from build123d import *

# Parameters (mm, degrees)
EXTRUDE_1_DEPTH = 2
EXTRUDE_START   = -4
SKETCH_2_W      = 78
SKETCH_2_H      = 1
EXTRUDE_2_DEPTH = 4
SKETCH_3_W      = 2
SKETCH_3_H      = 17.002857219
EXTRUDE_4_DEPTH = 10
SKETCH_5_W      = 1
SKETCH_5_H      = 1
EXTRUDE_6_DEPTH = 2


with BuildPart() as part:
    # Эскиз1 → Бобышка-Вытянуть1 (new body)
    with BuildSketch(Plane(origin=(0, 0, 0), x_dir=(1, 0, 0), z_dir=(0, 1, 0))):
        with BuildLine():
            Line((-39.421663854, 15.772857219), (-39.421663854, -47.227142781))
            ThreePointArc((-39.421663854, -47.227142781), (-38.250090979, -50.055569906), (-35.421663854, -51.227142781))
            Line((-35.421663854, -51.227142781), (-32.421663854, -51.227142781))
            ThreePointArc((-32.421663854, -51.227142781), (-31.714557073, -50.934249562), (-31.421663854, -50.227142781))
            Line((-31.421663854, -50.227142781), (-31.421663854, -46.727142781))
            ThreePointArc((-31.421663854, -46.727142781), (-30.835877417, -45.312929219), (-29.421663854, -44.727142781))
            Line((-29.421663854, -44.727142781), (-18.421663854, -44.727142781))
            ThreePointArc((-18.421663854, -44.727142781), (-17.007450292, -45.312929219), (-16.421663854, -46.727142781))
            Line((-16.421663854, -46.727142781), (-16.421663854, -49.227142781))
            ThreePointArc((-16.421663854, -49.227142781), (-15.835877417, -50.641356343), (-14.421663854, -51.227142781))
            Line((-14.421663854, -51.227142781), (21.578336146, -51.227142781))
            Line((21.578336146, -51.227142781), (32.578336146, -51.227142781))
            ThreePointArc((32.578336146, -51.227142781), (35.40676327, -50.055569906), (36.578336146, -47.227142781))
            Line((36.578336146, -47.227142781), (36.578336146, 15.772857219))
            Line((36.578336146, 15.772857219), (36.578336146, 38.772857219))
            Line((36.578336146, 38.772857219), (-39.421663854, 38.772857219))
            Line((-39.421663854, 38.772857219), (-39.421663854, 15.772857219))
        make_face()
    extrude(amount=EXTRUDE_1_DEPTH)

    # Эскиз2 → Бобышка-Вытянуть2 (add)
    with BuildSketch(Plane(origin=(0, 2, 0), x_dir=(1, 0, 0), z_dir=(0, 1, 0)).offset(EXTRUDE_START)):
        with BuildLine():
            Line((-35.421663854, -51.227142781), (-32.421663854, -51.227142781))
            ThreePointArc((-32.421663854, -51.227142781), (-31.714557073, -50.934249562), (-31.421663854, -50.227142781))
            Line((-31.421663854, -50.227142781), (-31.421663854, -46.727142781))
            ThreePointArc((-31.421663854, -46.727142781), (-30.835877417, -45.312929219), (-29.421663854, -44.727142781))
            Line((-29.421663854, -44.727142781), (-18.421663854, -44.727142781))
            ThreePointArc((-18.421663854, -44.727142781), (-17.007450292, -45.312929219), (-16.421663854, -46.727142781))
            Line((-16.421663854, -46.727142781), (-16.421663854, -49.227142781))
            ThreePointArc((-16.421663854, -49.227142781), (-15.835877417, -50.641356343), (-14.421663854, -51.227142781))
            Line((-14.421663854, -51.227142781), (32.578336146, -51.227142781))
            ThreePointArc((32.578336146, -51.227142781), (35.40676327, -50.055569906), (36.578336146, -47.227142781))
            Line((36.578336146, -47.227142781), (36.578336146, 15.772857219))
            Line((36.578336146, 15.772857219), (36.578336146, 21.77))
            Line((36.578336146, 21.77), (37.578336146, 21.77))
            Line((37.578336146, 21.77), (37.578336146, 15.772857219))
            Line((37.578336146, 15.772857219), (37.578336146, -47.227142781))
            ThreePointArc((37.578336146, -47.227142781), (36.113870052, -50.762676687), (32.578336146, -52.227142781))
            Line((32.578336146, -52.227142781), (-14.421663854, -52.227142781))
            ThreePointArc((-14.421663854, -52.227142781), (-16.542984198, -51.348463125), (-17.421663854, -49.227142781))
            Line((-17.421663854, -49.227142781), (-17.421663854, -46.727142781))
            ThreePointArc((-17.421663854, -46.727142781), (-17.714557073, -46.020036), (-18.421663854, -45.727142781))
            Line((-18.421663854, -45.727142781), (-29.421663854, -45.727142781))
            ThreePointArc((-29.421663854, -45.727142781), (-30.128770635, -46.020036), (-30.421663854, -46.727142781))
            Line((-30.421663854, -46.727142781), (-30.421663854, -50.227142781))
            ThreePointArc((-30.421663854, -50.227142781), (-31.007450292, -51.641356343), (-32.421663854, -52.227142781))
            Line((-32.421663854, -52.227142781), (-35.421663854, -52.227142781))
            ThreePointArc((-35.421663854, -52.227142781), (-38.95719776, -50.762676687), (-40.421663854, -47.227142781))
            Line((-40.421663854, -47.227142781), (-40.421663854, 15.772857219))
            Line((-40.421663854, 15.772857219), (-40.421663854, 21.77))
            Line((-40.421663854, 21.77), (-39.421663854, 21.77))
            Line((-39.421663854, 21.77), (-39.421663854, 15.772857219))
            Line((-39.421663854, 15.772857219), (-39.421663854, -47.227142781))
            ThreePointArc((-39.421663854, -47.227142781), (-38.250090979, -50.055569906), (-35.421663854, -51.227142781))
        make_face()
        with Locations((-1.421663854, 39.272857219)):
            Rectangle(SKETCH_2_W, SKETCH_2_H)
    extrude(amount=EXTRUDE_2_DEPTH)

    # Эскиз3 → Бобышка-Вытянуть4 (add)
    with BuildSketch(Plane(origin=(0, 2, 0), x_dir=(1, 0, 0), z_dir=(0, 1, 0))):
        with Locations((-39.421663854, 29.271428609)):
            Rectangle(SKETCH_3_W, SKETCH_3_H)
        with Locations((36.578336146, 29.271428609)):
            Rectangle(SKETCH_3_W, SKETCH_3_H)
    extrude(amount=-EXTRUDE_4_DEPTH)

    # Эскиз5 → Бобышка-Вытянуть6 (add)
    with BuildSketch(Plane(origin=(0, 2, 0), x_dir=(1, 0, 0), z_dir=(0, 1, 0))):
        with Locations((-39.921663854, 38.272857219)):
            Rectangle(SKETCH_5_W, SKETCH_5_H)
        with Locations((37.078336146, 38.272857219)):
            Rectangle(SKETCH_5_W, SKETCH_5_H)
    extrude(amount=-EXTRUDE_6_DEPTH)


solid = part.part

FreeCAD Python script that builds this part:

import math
import FreeCAD as App
import Part
import Sketcher

V = App.Vector
Q = App.Units.Quantity

doc = App.newDocument("Part")
params = doc.addObject("Spreadsheet::Sheet", "Params")
for row, (alias, value) in enumerate([
    ("sketch1_radius", "4 mm"),
    ("sketch1_radius2", "1 mm"),
    ("sketch1_radius3", "2 mm"),
    ("sketch1_width", "3 mm"),
    ("sketch1_width2", "11 mm"),
    ("pad1_length", "2 mm"),
    ("sketch2_radius", "4 mm"),
    ("sketch2_radius2", "5 mm"),
    ("sketch2_radius3", "2 mm"),
    ("sketch2_width", "3 mm"),
    ("sketch2_width2", "11 mm"),
    ("pad2_length", "4 mm"),
    ("sketch3_width", "2 mm"),
    ("pad3_length", "10 mm"),
    ("sketch4_width", "1 mm"),
    ("pad4_length", "2 mm"),
], start=1):
    params.set(f"A{row}", alias)
    params.set(f"B{row}", "=" + value)
    params.setAlias(f"B{row}", alias)

body = doc.addObject("PartDesign::Body", "Body")

# Sketch on XZ plane
sketch1 = body.newObject("Sketcher::SketchObject", "Sketch")
sketch1.AttachmentSupport = (doc.getObject("XZ_Plane"), [""])
sketch1.MapMode = "FlatFace"
sketch1.addGeometry([
    Part.ArcOfCircle(Part.Circle(V(-35.4, 47.2, 0), V(0, 0, 1), 4), math.radians(90), math.radians(180)),  # 0
    Part.LineSegment(V(-35.4, 51.2, 0), V(-32.4, 51.2, 0)),  # 1
    Part.ArcOfCircle(Part.Circle(V(-32.4, 50.2, 0), V(0, 0, 1), 1), math.radians(0), math.radians(90)),  # 2
    Part.LineSegment(V(-31.4, 50.2, 0), V(-31.4, 46.7, 0)),  # 3
    Part.ArcOfCircle(Part.Circle(V(-29.4, 46.7, 0), V(0, 0, 1), 2), math.radians(180), math.radians(270)),  # 4
    Part.LineSegment(V(-29.4, 44.7, 0), V(-18.4, 44.7, 0)),  # 5
    Part.ArcOfCircle(Part.Circle(V(-18.4, 46.7, 0), V(0, 0, 1), 2), math.radians(-90), math.radians(0)),  # 6
    Part.LineSegment(V(-16.4, 46.7, 0), V(-16.4, 49.2, 0)),  # 7
    Part.ArcOfCircle(Part.Circle(V(-14.4, 49.2, 0), V(0, 0, 1), 2), math.radians(90), math.radians(180)),  # 8
    Part.LineSegment(V(-14.4, 51.2, 0), V(32.6, 51.2, 0)),  # 9
    Part.ArcOfCircle(Part.Circle(V(32.6, 47.2, 0), V(0, 0, 1), 4), math.radians(0), math.radians(90)),  # 10
    Part.LineSegment(V(36.6, 47.2, 0), V(36.6, -38.8, 0)),  # 11
    Part.LineSegment(V(36.6, -38.8, 0), V(-39.4, -38.8, 0)),  # 12
    Part.LineSegment(V(-39.4, -38.8, 0), V(-39.4, 47.2, 0)),  # 13
], False)
sketch1.addConstraint([
    Sketcher.Constraint("Tangent", 0, 1, 1, 1),
    Sketcher.Constraint("Tangent", 1, 2, 2, 2),
    Sketcher.Constraint("Tangent", 2, 1, 3, 1),
    Sketcher.Constraint("Tangent", 3, 2, 4, 1),
    Sketcher.Constraint("Tangent", 4, 2, 5, 1),
    Sketcher.Constraint("Tangent", 5, 2, 6, 1),
    Sketcher.Constraint("Tangent", 6, 2, 7, 1),
    Sketcher.Constraint("Tangent", 7, 2, 8, 2),
    Sketcher.Constraint("Tangent", 8, 1, 9, 1),
    Sketcher.Constraint("Tangent", 9, 2, 10, 2),
    Sketcher.Constraint("Tangent", 10, 1, 11, 1),
    Sketcher.Constraint("Coincident", 11, 2, 12, 1),
    Sketcher.Constraint("Coincident", 12, 2, 13, 1),
    Sketcher.Constraint("Tangent", 13, 2, 0, 2),
    Sketcher.Constraint("Horizontal", 1),
    Sketcher.Constraint("Vertical", 3),
    Sketcher.Constraint("Horizontal", 5),
    Sketcher.Constraint("Vertical", 7),
    Sketcher.Constraint("Horizontal", 9),
    Sketcher.Constraint("Vertical", 11),
    Sketcher.Constraint("Horizontal", 12),
    Sketcher.Constraint("Vertical", 13),
    Sketcher.Constraint("Equal", 4, 6),
    Sketcher.Constraint("Equal", 6, 8),
    Sketcher.Constraint("Equal", 0, 10),
    Sketcher.Constraint("Horizontal", 0, 3, 10, 3),
    Sketcher.Constraint("Radius", 0, Q("4 mm")),
    Sketcher.Constraint("Radius", 2, Q("1 mm")),
    Sketcher.Constraint("Radius", 4, Q("2 mm")),
    Sketcher.Constraint("DistanceX", 1, 1, 1, 2, Q("3 mm")),
    Sketcher.Constraint("DistanceX", 5, 1, 5, 2, Q("11 mm")),
    Sketcher.Constraint("DistanceX", 9, 1, 9, 2, Q("47 mm")),
    Sketcher.Constraint("DistanceY", 11, 2, 11, 1, Q("86 mm")),
    Sketcher.Constraint("DistanceY", 3, 2, 3, 1, Q("3.5 mm")),
    Sketcher.Constraint("DistanceX", 0, 3, -1, 1, Q("35.421664 mm")),
    Sketcher.Constraint("DistanceY", -1, 1, 0, 3, Q("47.227143 mm")),
])
sketch1.setExpression("Constraints[26]", "Params.sketch1_radius")
sketch1.setExpression("Constraints[27]", "Params.sketch1_radius2")
sketch1.setExpression("Constraints[28]", "Params.sketch1_radius3")
sketch1.setExpression("Constraints[29]", "Params.sketch1_width")
sketch1.setExpression("Constraints[30]", "Params.sketch1_width2")
pad1 = body.newObject("PartDesign::Pad", "Pad")
pad1.Profile = sketch1
pad1.setExpression("Length", "Params.pad1_length")
pad1.Reversed = True

# Sketch on XZ plane
sketch2 = body.newObject("Sketcher::SketchObject", "Sketch001")
sketch2.AttachmentSupport = (doc.getObject("XZ_Plane"), [""])
sketch2.MapMode = "FlatFace"
sketch2.AttachmentOffset = App.Placement(V(0, 0, 2), App.Rotation())
sketch2.addGeometry([
    Part.LineSegment(V(-32.4, 51.2, 0), V(-35.4, 51.2, 0)),  # 0
    Part.ArcOfCircle(Part.Circle(V(-35.4, 47.2, 0), V(0, 0, 1), 4), math.radians(90), math.radians(180)),  # 1
    Part.LineSegment(V(-39.4, 47.2, 0), V(-39.4, -21.8, 0)),  # 2
    Part.LineSegment(V(-39.4, -21.8, 0), V(-40.4, -21.8, 0)),  # 3
    Part.LineSegment(V(-40.4, -21.8, 0), V(-40.4, 47.2, 0)),  # 4
    Part.ArcOfCircle(Part.Circle(V(-35.4, 47.2, 0), V(0, 0, 1), 5), math.radians(90), math.radians(180)),  # 5
    Part.LineSegment(V(-35.4, 52.2, 0), V(-32.4, 52.2, 0)),  # 6
    Part.ArcOfCircle(Part.Circle(V(-32.4, 50.2, 0), V(0, 0, 1), 2), math.radians(0), math.radians(90)),  # 7
    Part.LineSegment(V(-30.4, 50.2, 0), V(-30.4, 46.7, 0)),  # 8
    Part.ArcOfCircle(Part.Circle(V(-29.4, 46.7, 0), V(0, 0, 1), 1), math.radians(-180), math.radians(-90)),  # 9
    Part.LineSegment(V(-29.4, 45.7, 0), V(-18.4, 45.7, 0)),  # 10
    Part.ArcOfCircle(Part.Circle(V(-18.4, 46.7, 0), V(0, 0, 1), 1), math.radians(-90), math.radians(0)),  # 11
    Part.LineSegment(V(-17.4, 46.7, 0), V(-17.4, 49.2, 0)),  # 12
    Part.ArcOfCircle(Part.Circle(V(-14.4, 49.2, 0), V(0, 0, 1), 3), math.radians(90), math.radians(180)),  # 13
    Part.LineSegment(V(-14.4, 52.2, 0), V(32.6, 52.2, 0)),  # 14
    Part.ArcOfCircle(Part.Circle(V(32.6, 47.2, 0), V(0, 0, 1), 5), math.radians(0), math.radians(90)),  # 15
    Part.LineSegment(V(37.6, 47.2, 0), V(37.6, -21.8, 0)),  # 16
    Part.LineSegment(V(37.6, -21.8, 0), V(36.6, -21.8, 0)),  # 17
    Part.LineSegment(V(36.6, -21.8, 0), V(36.6, 47.2, 0)),  # 18
    Part.ArcOfCircle(Part.Circle(V(32.6, 47.2, 0), V(0, 0, 1), 4), math.radians(0), math.radians(90)),  # 19
    Part.LineSegment(V(32.6, 51.2, 0), V(-14.4, 51.2, 0)),  # 20
    Part.ArcOfCircle(Part.Circle(V(-14.4, 49.2, 0), V(0, 0, 1), 2), math.radians(90), math.radians(180)),  # 21
    Part.LineSegment(V(-16.4, 49.2, 0), V(-16.4, 46.7, 0)),  # 22
    Part.ArcOfCircle(Part.Circle(V(-18.4, 46.7, 0), V(0, 0, 1), 2), math.radians(-90), math.radians(0)),  # 23
    Part.LineSegment(V(-18.4, 44.7, 0), V(-29.4, 44.7, 0)),  # 24
    Part.ArcOfCircle(Part.Circle(V(-29.4, 46.7, 0), V(0, 0, 1), 2), math.radians(180), math.radians(270)),  # 25
    Part.LineSegment(V(-31.4, 46.7, 0), V(-31.4, 50.2, 0)),  # 26
    Part.ArcOfCircle(Part.Circle(V(-32.4, 50.2, 0), V(0, 0, 1), 1), math.radians(0), math.radians(90)),  # 27
    Part.LineSegment(V(-40.4, -39.8, 0), V(-40.4, -38.8, 0)),  # 28
    Part.LineSegment(V(-40.4, -38.8, 0), V(37.6, -38.8, 0)),  # 29
    Part.LineSegment(V(37.6, -38.8, 0), V(37.6, -39.8, 0)),  # 30
    Part.LineSegment(V(37.6, -39.8, 0), V(-40.4, -39.8, 0)),  # 31
], False)
sketch2.addConstraint([
    Sketcher.Constraint("Tangent", 0, 2, 1, 1),
    Sketcher.Constraint("Tangent", 1, 2, 2, 1),
    Sketcher.Constraint("Coincident", 2, 2, 3, 1),
    Sketcher.Constraint("Coincident", 3, 2, 4, 1),
    Sketcher.Constraint("Tangent", 4, 2, 5, 2),
    Sketcher.Constraint("Tangent", 5, 1, 6, 1),
    Sketcher.Constraint("Tangent", 6, 2, 7, 2),
    Sketcher.Constraint("Tangent", 7, 1, 8, 1),
    Sketcher.Constraint("Tangent", 8, 2, 9, 1),
    Sketcher.Constraint("Tangent", 9, 2, 10, 1),
    Sketcher.Constraint("Tangent", 10, 2, 11, 1),
    Sketcher.Constraint("Tangent", 11, 2, 12, 1),
    Sketcher.Constraint("Tangent", 12, 2, 13, 2),
    Sketcher.Constraint("Tangent", 13, 1, 14, 1),
    Sketcher.Constraint("Tangent", 14, 2, 15, 2),
    Sketcher.Constraint("Tangent", 15, 1, 16, 1),
    Sketcher.Constraint("Coincident", 16, 2, 17, 1),
    Sketcher.Constraint("Coincident", 17, 2, 18, 1),
    Sketcher.Constraint("Tangent", 18, 2, 19, 1),
    Sketcher.Constraint("Tangent", 19, 2, 20, 1),
    Sketcher.Constraint("Tangent", 20, 2, 21, 1),
    Sketcher.Constraint("Tangent", 21, 2, 22, 1),
    Sketcher.Constraint("Tangent", 22, 2, 23, 2),
    Sketcher.Constraint("Tangent", 23, 1, 24, 1),
    Sketcher.Constraint("Tangent", 24, 2, 25, 2),
    Sketcher.Constraint("Tangent", 25, 1, 26, 1),
    Sketcher.Constraint("Tangent", 26, 2, 27, 1),
    Sketcher.Constraint("Tangent", 27, 2, 0, 1),
    Sketcher.Constraint("Coincident", 28, 2, 29, 1),
    Sketcher.Constraint("Coincident", 29, 2, 30, 1),
    Sketcher.Constraint("Coincident", 30, 2, 31, 1),
    Sketcher.Constraint("Coincident", 31, 2, 28, 1),
    Sketcher.Constraint("Horizontal", 0),
    Sketcher.Constraint("Vertical", 2),
    Sketcher.Constraint("Horizontal", 3),
    Sketcher.Constraint("Vertical", 4),
    Sketcher.Constraint("Horizontal", 6),
    Sketcher.Constraint("Vertical", 8),
    Sketcher.Constraint("Horizontal", 10),
    Sketcher.Constraint("Vertical", 12),
    Sketcher.Constraint("Horizontal", 14),
    Sketcher.Constraint("Vertical", 16),
    Sketcher.Constraint("Horizontal", 17),
    Sketcher.Constraint("Vertical", 18),
    Sketcher.Constraint("Horizontal", 20),
    Sketcher.Constraint("Vertical", 22),
    Sketcher.Constraint("Horizontal", 24),
    Sketcher.Constraint("Vertical", 26),
    Sketcher.Constraint("Vertical", 28),
    Sketcher.Constraint("Horizontal", 29),
    Sketcher.Constraint("Vertical", 30),
    Sketcher.Constraint("Horizontal", 31),
    Sketcher.Constraint("Coincident", 5, 3, 1, 3),
    Sketcher.Constraint("Coincident", 19, 3, 15, 3),
    Sketcher.Constraint("Coincident", 21, 3, 13, 3),
    Sketcher.Constraint("Coincident", 23, 3, 11, 3),
    Sketcher.Constraint("Coincident", 25, 3, 9, 3),
    Sketcher.Constraint("Coincident", 27, 3, 7, 3),
    Sketcher.Constraint("Equal", 9, 11),
    Sketcher.Constraint("Equal", 5, 15),
    Sketcher.Constraint("Equal", 7, 21),
    Sketcher.Constraint("Equal", 21, 23),
    Sketcher.Constraint("Horizontal", 5, 3, 15, 3),
    Sketcher.Constraint("Horizontal", 3, 2, 16, 2),
    Sketcher.Constraint("Vertical", 4, 2, 28, 2),
    Sketcher.Constraint("Vertical", 16, 2, 29, 2),
    Sketcher.Constraint("Equal", 17, 28),
    Sketcher.Constraint("Radius", 1, Q("4 mm")),
    Sketcher.Constraint("Radius", 5, Q("5 mm")),
    Sketcher.Constraint("Radius", 7, Q("2 mm")),
    Sketcher.Constraint("DistanceX", 0, 2, 0, 1, Q("3 mm")),
    Sketcher.Constraint("DistanceX", 10, 1, 10, 2, Q("11 mm")),
    Sketcher.Constraint("DistanceX", 14, 1, 14, 2, Q("47 mm")),
    Sketcher.Constraint("DistanceY", 8, 2, 8, 1, Q("3.5 mm")),
    Sketcher.Constraint("DistanceY", 28, 2, 24, 2, Q("83.5 mm")),
    Sketcher.Constraint("DistanceY", 2, 2, -1, 1, Q("21.77 mm")),
    Sketcher.Constraint("DistanceY", 2, 2, 2, 1, Q("68.997143 mm")),
    Sketcher.Constraint("DistanceX", 1, 3, -1, 1, Q("35.421664 mm")),
])
sketch2.setExpression("Constraints[67]", "Params.sketch2_radius")
sketch2.setExpression("Constraints[68]", "Params.sketch2_radius2")
sketch2.setExpression("Constraints[69]", "Params.sketch2_radius3")
sketch2.setExpression("Constraints[70]", "Params.sketch2_width")
sketch2.setExpression("Constraints[71]", "Params.sketch2_width2")
pad2 = body.newObject("PartDesign::Pad", "Pad001")
pad2.Profile = sketch2
pad2.setExpression("Length", "Params.pad2_length")
pad2.Reversed = True

# Sketch on XZ plane
sketch3 = body.newObject("Sketcher::SketchObject", "Sketch002")
sketch3.AttachmentSupport = (doc.getObject("XZ_Plane"), [""])
sketch3.MapMode = "FlatFace"
sketch3.AttachmentOffset = App.Placement(V(0, 0, -2), App.Rotation())
sketch3.addGeometry([
    Part.LineSegment(V(-40.4, -37.8, 0), V(-40.4, -20.8, 0)),  # 0
    Part.LineSegment(V(-40.4, -20.8, 0), V(-38.4, -20.8, 0)),  # 1
    Part.LineSegment(V(-38.4, -20.8, 0), V(-38.4, -37.8, 0)),  # 2
    Part.LineSegment(V(-38.4, -37.8, 0), V(-40.4, -37.8, 0)),  # 3
    Part.LineSegment(V(35.6, -37.8, 0), V(35.6, -20.8, 0)),  # 4
    Part.LineSegment(V(35.6, -20.8, 0), V(37.6, -20.8, 0)),  # 5
    Part.LineSegment(V(37.6, -20.8, 0), V(37.6, -37.8, 0)),  # 6
    Part.LineSegment(V(37.6, -37.8, 0), V(35.6, -37.8, 0)),  # 7
], False)
sketch3.addConstraint([
    Sketcher.Constraint("Coincident", 0, 2, 1, 1),
    Sketcher.Constraint("Coincident", 1, 2, 2, 1),
    Sketcher.Constraint("Coincident", 2, 2, 3, 1),
    Sketcher.Constraint("Coincident", 3, 2, 0, 1),
    Sketcher.Constraint("Coincident", 4, 2, 5, 1),
    Sketcher.Constraint("Coincident", 5, 2, 6, 1),
    Sketcher.Constraint("Coincident", 6, 2, 7, 1),
    Sketcher.Constraint("Coincident", 7, 2, 4, 1),
    Sketcher.Constraint("Vertical", 0),
    Sketcher.Constraint("Horizontal", 1),
    Sketcher.Constraint("Vertical", 2),
    Sketcher.Constraint("Horizontal", 3),
    Sketcher.Constraint("Vertical", 4),
    Sketcher.Constraint("Horizontal", 5),
    Sketcher.Constraint("Vertical", 6),
    Sketcher.Constraint("Horizontal", 7),
    Sketcher.Constraint("Horizontal", 1, 2, 4, 2),
    Sketcher.Constraint("Horizontal", 3, 2, 6, 2),
    Sketcher.Constraint("Equal", 3, 5),
    Sketcher.Constraint("DistanceX", 1, 1, 1, 2, Q("2 mm")),
    Sketcher.Constraint("DistanceX", 1, 2, 4, 2, Q("74 mm")),
    Sketcher.Constraint("DistanceY", 0, 2, -1, 1, Q("20.77 mm")),
    Sketcher.Constraint("DistanceY", 0, 1, 0, 2, Q("17.002857 mm")),
    Sketcher.Constraint("DistanceX", 0, 2, -1, 1, Q("40.421664 mm")),
])
sketch3.setExpression("Constraints[19]", "Params.sketch3_width")
pad3 = body.newObject("PartDesign::Pad", "Pad002")
pad3.Profile = sketch3
pad3.setExpression("Length", "Params.pad3_length")

# Sketch on XZ plane
sketch4 = body.newObject("Sketcher::SketchObject", "Sketch003")
sketch4.AttachmentSupport = (doc.getObject("XZ_Plane"), [""])
sketch4.MapMode = "FlatFace"
sketch4.AttachmentOffset = App.Placement(V(0, 0, -2), App.Rotation())
sketch4.addGeometry([
    Part.LineSegment(V(-40.4, -38.8, 0), V(-40.4, -37.8, 0)),  # 0
    Part.LineSegment(V(-40.4, -37.8, 0), V(-39.4, -37.8, 0)),  # 1
    Part.LineSegment(V(-39.4, -37.8, 0), V(-39.4, -38.8, 0)),  # 2
    Part.LineSegment(V(-39.4, -38.8, 0), V(-40.4, -38.8, 0)),  # 3
    Part.LineSegment(V(36.6, -38.8, 0), V(36.6, -37.8, 0)),  # 4
    Part.LineSegment(V(36.6, -37.8, 0), V(37.6, -37.8, 0)),  # 5
    Part.LineSegment(V(37.6, -37.8, 0), V(37.6, -38.8, 0)),  # 6
    Part.LineSegment(V(37.6, -38.8, 0), V(36.6, -38.8, 0)),  # 7
], False)
sketch4.addConstraint([
    Sketcher.Constraint("Coincident", 0, 2, 1, 1),
    Sketcher.Constraint("Coincident", 1, 2, 2, 1),
    Sketcher.Constraint("Coincident", 2, 2, 3, 1),
    Sketcher.Constraint("Coincident", 3, 2, 0, 1),
    Sketcher.Constraint("Coincident", 4, 2, 5, 1),
    Sketcher.Constraint("Coincident", 5, 2, 6, 1),
    Sketcher.Constraint("Coincident", 6, 2, 7, 1),
    Sketcher.Constraint("Coincident", 7, 2, 4, 1),
    Sketcher.Constraint("Vertical", 0),
    Sketcher.Constraint("Horizontal", 1),
    Sketcher.Constraint("Vertical", 2),
    Sketcher.Constraint("Horizontal", 3),
    Sketcher.Constraint("Vertical", 4),
    Sketcher.Constraint("Horizontal", 5),
    Sketcher.Constraint("Vertical", 6),
    Sketcher.Constraint("Horizontal", 7),
    Sketcher.Constraint("Horizontal", 1, 2, 4, 2),
    Sketcher.Constraint("Horizontal", 3, 2, 6, 2),
    Sketcher.Constraint("Equal", 3, 5),
    Sketcher.Constraint("Equal", 7, 0),
    Sketcher.Constraint("DistanceX", 1, 1, 1, 2, Q("1 mm")),
    Sketcher.Constraint("DistanceX", 1, 2, 4, 2, Q("76 mm")),
    Sketcher.Constraint("DistanceX", 0, 2, -1, 1, Q("40.421664 mm")),
    Sketcher.Constraint("DistanceY", 0, 2, -1, 1, Q("37.772857 mm")),
])
sketch4.setExpression("Constraints[20]", "Params.sketch4_width")
pad4 = body.newObject("PartDesign::Pad", "Pad003")
pad4.Profile = sketch4
pad4.setExpression("Length", "Params.pad4_length")

doc.recompute()
